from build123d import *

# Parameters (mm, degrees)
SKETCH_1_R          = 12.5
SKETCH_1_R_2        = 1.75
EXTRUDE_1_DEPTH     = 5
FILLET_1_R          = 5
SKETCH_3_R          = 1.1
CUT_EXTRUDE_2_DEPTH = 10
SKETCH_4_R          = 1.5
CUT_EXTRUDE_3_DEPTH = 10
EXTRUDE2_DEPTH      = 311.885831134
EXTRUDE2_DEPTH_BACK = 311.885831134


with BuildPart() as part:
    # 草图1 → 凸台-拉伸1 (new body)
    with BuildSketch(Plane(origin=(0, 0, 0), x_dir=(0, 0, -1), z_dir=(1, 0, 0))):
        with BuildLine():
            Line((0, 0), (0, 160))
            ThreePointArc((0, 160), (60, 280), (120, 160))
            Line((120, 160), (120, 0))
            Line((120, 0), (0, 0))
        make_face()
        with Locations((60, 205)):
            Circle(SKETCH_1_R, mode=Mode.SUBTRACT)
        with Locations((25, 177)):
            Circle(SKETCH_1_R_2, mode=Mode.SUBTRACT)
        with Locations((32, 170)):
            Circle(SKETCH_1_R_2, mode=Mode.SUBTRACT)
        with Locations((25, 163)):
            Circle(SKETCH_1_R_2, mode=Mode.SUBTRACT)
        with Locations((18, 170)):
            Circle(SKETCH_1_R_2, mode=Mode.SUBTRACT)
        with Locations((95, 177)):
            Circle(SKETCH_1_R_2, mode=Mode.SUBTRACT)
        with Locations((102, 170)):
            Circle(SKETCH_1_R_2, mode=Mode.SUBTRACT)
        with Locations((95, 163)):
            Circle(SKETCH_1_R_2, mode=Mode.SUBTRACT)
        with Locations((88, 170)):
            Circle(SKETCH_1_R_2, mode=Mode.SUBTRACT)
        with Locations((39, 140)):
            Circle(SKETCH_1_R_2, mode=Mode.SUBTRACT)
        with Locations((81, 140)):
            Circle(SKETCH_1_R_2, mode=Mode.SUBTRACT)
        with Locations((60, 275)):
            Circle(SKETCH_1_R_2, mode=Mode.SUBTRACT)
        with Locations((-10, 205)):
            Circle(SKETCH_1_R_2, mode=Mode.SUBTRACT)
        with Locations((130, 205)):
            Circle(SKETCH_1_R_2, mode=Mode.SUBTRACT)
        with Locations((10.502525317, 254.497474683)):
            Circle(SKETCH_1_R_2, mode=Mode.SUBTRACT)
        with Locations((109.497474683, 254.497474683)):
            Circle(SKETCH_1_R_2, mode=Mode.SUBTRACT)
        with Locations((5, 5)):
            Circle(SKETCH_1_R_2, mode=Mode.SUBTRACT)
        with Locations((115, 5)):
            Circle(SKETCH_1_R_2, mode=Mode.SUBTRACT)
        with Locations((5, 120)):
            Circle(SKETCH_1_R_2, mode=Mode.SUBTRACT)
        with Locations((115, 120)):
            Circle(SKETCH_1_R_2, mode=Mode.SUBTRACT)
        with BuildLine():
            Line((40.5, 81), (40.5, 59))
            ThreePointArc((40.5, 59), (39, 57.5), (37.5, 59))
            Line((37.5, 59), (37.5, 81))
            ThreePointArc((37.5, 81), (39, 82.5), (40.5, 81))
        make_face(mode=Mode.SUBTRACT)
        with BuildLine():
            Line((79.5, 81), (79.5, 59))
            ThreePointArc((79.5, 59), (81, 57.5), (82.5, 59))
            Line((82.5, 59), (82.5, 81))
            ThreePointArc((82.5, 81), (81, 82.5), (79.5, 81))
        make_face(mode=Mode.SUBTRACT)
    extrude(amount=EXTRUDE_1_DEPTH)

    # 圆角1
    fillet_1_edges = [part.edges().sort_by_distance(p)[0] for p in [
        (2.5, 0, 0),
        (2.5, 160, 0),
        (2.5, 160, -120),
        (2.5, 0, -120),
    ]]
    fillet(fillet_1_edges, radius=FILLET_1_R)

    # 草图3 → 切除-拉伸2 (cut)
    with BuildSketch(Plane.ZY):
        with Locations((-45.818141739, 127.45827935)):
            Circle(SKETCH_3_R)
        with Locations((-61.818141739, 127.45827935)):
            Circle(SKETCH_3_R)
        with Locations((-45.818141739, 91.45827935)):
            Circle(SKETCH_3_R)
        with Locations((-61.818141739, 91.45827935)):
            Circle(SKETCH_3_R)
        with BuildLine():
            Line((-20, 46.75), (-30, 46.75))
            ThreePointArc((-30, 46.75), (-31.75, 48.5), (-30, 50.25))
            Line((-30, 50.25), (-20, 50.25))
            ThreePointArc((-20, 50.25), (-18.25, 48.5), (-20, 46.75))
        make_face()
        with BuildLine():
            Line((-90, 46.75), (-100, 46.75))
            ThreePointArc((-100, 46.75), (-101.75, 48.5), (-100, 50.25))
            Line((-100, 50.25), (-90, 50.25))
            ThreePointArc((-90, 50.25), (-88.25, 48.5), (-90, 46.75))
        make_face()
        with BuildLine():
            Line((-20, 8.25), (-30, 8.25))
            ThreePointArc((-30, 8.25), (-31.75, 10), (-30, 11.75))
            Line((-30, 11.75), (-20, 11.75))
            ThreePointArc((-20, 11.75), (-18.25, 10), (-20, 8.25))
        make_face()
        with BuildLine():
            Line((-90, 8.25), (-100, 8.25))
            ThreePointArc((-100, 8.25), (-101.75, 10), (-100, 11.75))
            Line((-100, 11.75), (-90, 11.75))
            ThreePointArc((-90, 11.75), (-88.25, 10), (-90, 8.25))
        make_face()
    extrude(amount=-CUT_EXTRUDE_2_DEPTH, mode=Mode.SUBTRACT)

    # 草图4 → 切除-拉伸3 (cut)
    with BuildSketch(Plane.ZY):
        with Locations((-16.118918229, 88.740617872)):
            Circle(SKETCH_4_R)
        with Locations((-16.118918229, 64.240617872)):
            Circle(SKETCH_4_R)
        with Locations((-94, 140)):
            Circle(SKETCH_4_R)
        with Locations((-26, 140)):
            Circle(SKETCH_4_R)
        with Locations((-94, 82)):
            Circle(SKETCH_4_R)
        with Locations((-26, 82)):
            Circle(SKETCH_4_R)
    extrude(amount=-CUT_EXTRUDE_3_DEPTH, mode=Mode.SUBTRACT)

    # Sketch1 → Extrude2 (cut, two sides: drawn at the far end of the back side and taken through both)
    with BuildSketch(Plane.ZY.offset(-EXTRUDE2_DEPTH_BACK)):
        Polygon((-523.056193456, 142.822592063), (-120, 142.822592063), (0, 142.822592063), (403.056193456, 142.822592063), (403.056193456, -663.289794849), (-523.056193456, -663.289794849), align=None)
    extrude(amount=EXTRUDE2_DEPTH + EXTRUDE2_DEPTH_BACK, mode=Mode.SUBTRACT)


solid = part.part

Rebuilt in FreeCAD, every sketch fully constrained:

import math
import FreeCAD as App
import Part
import Sketcher
Q = App.Units.Quantity


def edges_at(feature, points):
    """Names of the edges that pass closest to the given points."""
    edges = feature.Shape.Edges
    near = lambda p: min(range(len(edges)), key=lambda i: edges[i].distToShape(Part.Vertex(*p))[0])
    return sorted({f"Edge{near(p) + 1}" for p in points})


def add_polygon(sketch, points):
    """Adds a closed chain of lines whose ends are joined by coincident constraints."""
    first, n = sketch.GeometryCount, len(points)
    for a, b in zip(points, points[1:] + points[:1]):
        sketch.addGeometry(Part.LineSegment(App.Vector(*a, 0), App.Vector(*b, 0)), False)
    for i in range(n):
        sketch.addConstraint(Sketcher.Constraint("Coincident", first + i, 2, first + (i + 1) % n, 1))

doc = App.newDocument("Part")
body = doc.addObject("PartDesign::Body", "Body")

# Sketch on YZ plane
sketch1 = body.newObject("Sketcher::SketchObject", "Sketch")
sketch1.AttachmentSupport = (doc.getObject("YZ_Plane"), [""])
sketch1.MapMode = "FlatFace"
sketch1.addGeometry(Part.LineSegment(App.Vector(160, 0, 0), App.Vector(0, 0, 0)), False)
sketch1.addGeometry(Part.LineSegment(App.Vector(0, 0, 0), App.Vector(0, -120, 0)), False)
sketch1.addGeometry(Part.LineSegment(App.Vector(0, -120, 0), App.Vector(160, -120, 0)), False)
sketch1.addGeometry(Part.ArcOfCircle(Part.Circle(App.Vector(205, -60, 0), App.Vector(0, 0, 1), 75), math.radians(-127), math.radians(127)), False)
sketch1.addGeometry(Part.Circle(App.Vector(5, -115, 0), App.Vector(0, 0, 1), 1.8), False)
sketch1.addGeometry(Part.ArcOfCircle(Part.Circle(App.Vector(81, -81, 0), App.Vector(0, 0, 1), 1.5), math.radians(-90), math.radians(90)), False)
sketch1.addGeometry(Part.LineSegment(App.Vector(81, -82.5, 0), App.Vector(59, -82.5, 0)), False)
sketch1.addGeometry(Part.ArcOfCircle(Part.Circle(App.Vector(59, -81, 0), App.Vector(0, 0, 1), 1.5), math.radians(90), math.radians(270)), False)
sketch1.addGeometry(Part.LineSegment(App.Vector(59, -79.5, 0), App.Vector(81, -79.5, 0)), False)
sketch1.addGeometry(Part.Circle(App.Vector(120, -115, 0), App.Vector(0, 0, 1), 1.8), False)
sketch1.addGeometry(Part.LineSegment(App.Vector(81, -40.5, 0), App.Vector(59, -40.5, 0)), False)
sketch1.addGeometry(Part.ArcOfCircle(Part.Circle(App.Vector(59, -39, 0), App.Vector(0, 0, 1), 1.5), math.radians(90), math.radians(270)), False)
sketch1.addGeometry(Part.LineSegment(App.Vector(59, -37.5, 0), App.Vector(81, -37.5, 0)), False)
sketch1.addGeometry(Part.ArcOfCircle(Part.Circle(App.Vector(81, -39, 0), App.Vector(0, 0, 1), 1.5), math.radians(-90), math.radians(90)), False)
sketch1.addGeometry(Part.Circle(App.Vector(5, -5, 0), App.Vector(0, 0, 1), 1.8), False)
sketch1.addGeometry(Part.Circle(App.Vector(120, -5, 0), App.Vector(0, 0, 1), 1.8), False)
sketch1.addGeometry(Part.Circle(App.Vector(170, -102, 0), App.Vector(0, 0, 1), 1.8), False)
sketch1.addGeometry(Part.Circle(App.Vector(205, -130, 0), App.Vector(0, 0, 1), 1.8), False)
sketch1.addGeometry(Part.Circle(App.Vector(140, -81, 0), App.Vector(0, 0, 1), 1.8), False)
sketch1.addGeometry(Part.Circle(App.Vector(163, -95, 0), App.Vector(0, 0, 1), 1.8), False)
sketch1.addGeometry(Part.Circle(App.Vector(170, -88, 0), App.Vector(0, 0, 1), 1.8), False)
sketch1.addGeometry(Part.Circle(App.Vector(177, -95, 0), App.Vector(0, 0, 1), 1.8), False)
sketch1.addGeometry(Part.Circle(App.Vector(254.5, -109.5, 0), App.Vector(0, 0, 1), 1.8), False)
sketch1.addGeometry(Part.Circle(App.Vector(140, -39, 0), App.Vector(0, 0, 1), 1.8), False)
sketch1.addGeometry(Part.Circle(App.Vector(163, -25, 0), App.Vector(0, 0, 1), 1.8), False)
sketch1.addGeometry(Part.Circle(App.Vector(170, -32, 0), App.Vector(0, 0, 1), 1.8), False)
sketch1.addGeometry(Part.Circle(App.Vector(205, -60, 0), App.Vector(0, 0, 1), 12.5), False)
sketch1.addGeometry(Part.Circle(App.Vector(177, -25, 0), App.Vector(0, 0, 1), 1.8), False)
sketch1.addGeometry(Part.Circle(App.Vector(170, -18, 0), App.Vector(0, 0, 1), 1.8), False)
sketch1.addGeometry(Part.Circle(App.Vector(205, 10, 0), App.Vector(0, 0, 1), 1.8), False)
sketch1.addGeometry(Part.Circle(App.Vector(275, -60, 0), App.Vector(0, 0, 1), 1.8), False)
sketch1.addGeometry(Part.Circle(App.Vector(254.5, -10.5, 0), App.Vector(0, 0, 1), 1.8), False)
sketch1.addConstraint(Sketcher.Constraint("Coincident", 0, 2, 1, 1))
sketch1.addConstraint(Sketcher.Constraint("Coincident", 1, 2, 2, 1))
sketch1.addConstraint(Sketcher.Constraint("Coincident", 2, 2, 3, 1))
sketch1.addConstraint(Sketcher.Constraint("Coincident", 3, 2, 0, 1))
sketch1.addConstraint(Sketcher.Constraint("Tangent", 5, 1, 6, 1))
sketch1.addConstraint(Sketcher.Constraint("Tangent", 6, 2, 7, 2))
sketch1.addConstraint(Sketcher.Constraint("Tangent", 7, 1, 8, 1))
sketch1.addConstraint(Sketcher.Constraint("Tangent", 8, 2, 5, 2))
sketch1.addConstraint(Sketcher.Constraint("Tangent", 10, 2, 11, 2))
sketch1.addConstraint(Sketcher.Constraint("Tangent", 11, 1, 12, 1))
sketch1.addConstraint(Sketcher.Constraint("Tangent", 12, 2, 13, 2))
sketch1.addConstraint(Sketcher.Constraint("Tangent", 13, 1, 10, 1))
sketch1.addConstraint(Sketcher.Constraint("Horizontal", 0))
sketch1.addConstraint(Sketcher.Constraint("Vertical", 1))
sketch1.addConstraint(Sketcher.Constraint("Horizontal", 2))
sketch1.addConstraint(Sketcher.Constraint("Horizontal", 6))
sketch1.addConstraint(Sketcher.Constraint("Horizontal", 8))
sketch1.addConstraint(Sketcher.Constraint("Horizontal", 10))
sketch1.addConstraint(Sketcher.Constraint("Horizontal", 12))
sketch1.addConstraint(Sketcher.Constraint("Coincident", 0, 2, -1, 1))
sketch1.addConstraint(Sketcher.Constraint("Coincident", 26, 3, 3, 3))
sketch1.addConstraint(Sketcher.Constraint("Equal", 4, 9))
sketch1.addConstraint(Sketcher.Constraint("Equal", 7, 11))
sketch1.addConstraint(Sketcher.Constraint("Equal", 9, 14))
sketch1.addConstraint(Sketcher.Constraint("Equal", 14, 15))
sketch1.addConstraint(Sketcher.Constraint("Equal", 15, 16))
sketch1.addConstraint(Sketcher.Constraint("Equal", 16, 17))
sketch1.addConstraint(Sketcher.Constraint("Equal", 17, 18))
sketch1.addConstraint(Sketcher.Constraint("Equal", 18, 19))
sketch1.addConstraint(Sketcher.Constraint("Equal", 19, 20))
sketch1.addConstraint(Sketcher.Constraint("Equal", 20, 21))
sketch1.addConstraint(Sketcher.Constraint("Equal", 21, 22))
sketch1.addConstraint(Sketcher.Constraint("Equal", 22, 23))
sketch1.addConstraint(Sketcher.Constraint("Equal", 23, 24))
sketch1.addConstraint(Sketcher.Constraint("Equal", 24, 25))
sketch1.addConstraint(Sketcher.Constraint("Equal", 25, 27))
sketch1.addConstraint(Sketcher.Constraint("Equal", 27, 28))
sketch1.addConstraint(Sketcher.Constraint("Equal", 28, 29))
sketch1.addConstraint(Sketcher.Constraint("Equal", 29, 30))
sketch1.addConstraint(Sketcher.Constraint("Equal", 30, 31))
sketch1.addConstraint(Sketcher.Constraint("Horizontal", 4, 3, 9, 3))
sketch1.addConstraint(Sketcher.Constraint("Horizontal", 14, 3, 15, 3))
sketch1.addConstraint(Sketcher.Constraint("Horizontal", 7, 3, 18, 3))
sketch1.addConstraint(Sketcher.Constraint("Horizontal", 19, 3, 21, 3))
sketch1.addConstraint(Sketcher.Constraint("Horizontal", 13, 3, 23, 3))
sketch1.addConstraint(Sketcher.Constraint("Horizontal", 24, 3, 27, 3))
sketch1.addConstraint(Sketcher.Constraint("Horizontal", 26, 3, 30, 3))
sketch1.addConstraint(Sketcher.Constraint("Vertical", 7, 3, 11, 3))
sketch1.addConstraint(Sketcher.Constraint("Vertical", 5, 3, 13, 3))
sketch1.addConstraint(Sketcher.Constraint("Vertical", 4, 3, 14, 3))
sketch1.addConstraint(Sketcher.Constraint("Vertical", 9, 3, 15, 3))
sketch1.addConstraint(Sketcher.Constraint("Vertical", 3, 3, 17, 3))
sketch1.addConstraint(Sketcher.Constraint("Vertical", 16, 3, 20, 3))
sketch1.addConstraint(Sketcher.Constraint("Vertical", 18, 3, 23, 3))
sketch1.addConstraint(Sketcher.Constraint("Vertical", 19, 3, 24, 3))
sketch1.addConstraint(Sketcher.Constraint("Vertical", 20, 3, 25, 3))
sketch1.addConstraint(Sketcher.Constraint("Vertical", 21, 3, 27, 3))
sketch1.addConstraint(Sketcher.Constraint("Vertical", 25, 3, 28, 3))
sketch1.addConstraint(Sketcher.Constraint("Vertical", 26, 3, 29, 3))
sketch1.addConstraint(Sketcher.Constraint("Vertical", 22, 3, 31, 3))
sketch1.addConstraint(Sketcher.Constraint("Vertical", 2, 2, 3, 2))
sketch1.addConstraint(Sketcher.Constraint("Diameter", 26, Q("25 mm")))
sketch1.addConstraint(Sketcher.Constraint("Radius", 3, Q("75 mm")))
sketch1.addConstraint(Sketcher.Constraint("Diameter", 4, Q("3.5 mm")))
sketch1.addConstraint(Sketcher.Constraint("Radius", 5, Q("1.5 mm")))
sketch1.addConstraint(Sketcher.Constraint("DistanceX", 0, 2, 0, 1, Q("160 mm")))
sketch1.addConstraint(Sketcher.Constraint("DistanceX", 6, 2, 6, 1, Q("22 mm")))
sketch1.addConstraint(Sketcher.Constraint("DistanceY", 1, 2, 1, 1, Q("120 mm")))
sketch1.addConstraint(Sketcher.Constraint("DistanceX", -1, 1, 4, 3, Q("5 mm")))
sketch1.addConstraint(Sketcher.Constraint("DistanceY", 4, 3, -1, 1, Q("115 mm")))
sketch1.addConstraint(Sketcher.Constraint("DistanceX", -1, 1, 5, 3, Q("81 mm")))
sketch1.addConstraint(Sketcher.Constraint("DistanceY", 5, 3, -1, 1, Q("81 mm")))
sketch1.addConstraint(Sketcher.Constraint("DistanceX", -1, 1, 9, 3, Q("120 mm")))
sketch1.addConstraint(Sketcher.Constraint("DistanceY", 11, 3, -1, 1, Q("39 mm")))
sketch1.addConstraint(Sketcher.Constraint("DistanceY", 14, 3, -1, 1, Q("5 mm")))
sketch1.addConstraint(Sketcher.Constraint("DistanceX", -1, 1, 16, 3, Q("170 mm")))
sketch1.addConstraint(Sketcher.Constraint("DistanceY", 16, 3, -1, 1, Q("102 mm")))
sketch1.addConstraint(Sketcher.Constraint("DistanceY", 17, 3, -1, 1, Q("130 mm")))
sketch1.addConstraint(Sketcher.Constraint("DistanceX", -1, 1, 18, 3, Q("140 mm")))
sketch1.addConstraint(Sketcher.Constraint("DistanceX", -1, 1, 19, 3, Q("163 mm")))
sketch1.addConstraint(Sketcher.Constraint("DistanceY", 19, 3, -1, 1, Q("95 mm")))
sketch1.addConstraint(Sketcher.Constraint("DistanceY", 20, 3, -1, 1, Q("88 mm")))
sketch1.addConstraint(Sketcher.Constraint("DistanceX", -1, 1, 21, 3, Q("177 mm")))
sketch1.addConstraint(Sketcher.Constraint("DistanceY", 24, 3, -1, 1, Q("25 mm")))
sketch1.addConstraint(Sketcher.Constraint("DistanceY", 25, 3, -1, 1, Q("32 mm")))
sketch1.addConstraint(Sketcher.Constraint("DistanceY", 28, 3, -1, 1, Q("18 mm")))
sketch1.addConstraint(Sketcher.Constraint("DistanceY", -1, 1, 29, 3, Q("10 mm")))
sketch1.addConstraint(Sketcher.Constraint("DistanceX", -1, 1, 30, 3, Q("275 mm")))
sketch1.addConstraint(Sketcher.Constraint("DistanceX", -1, 1, 22, 3, Q("254.497475 mm")))
sketch1.addConstraint(Sketcher.Constraint("DistanceY", 22, 3, -1, 1, Q("109.497475 mm")))
sketch1.addConstraint(Sketcher.Constraint("DistanceY", 31, 3, -1, 1, Q("10.502525 mm")))
pad1 = body.newObject("PartDesign::Pad", "Pad")
pad1.Profile = sketch1
pad1.Length = 5
doc.recompute()

fillet = body.newObject("PartDesign::Fillet", "Fillet")
fillet.Base = (pad1, edges_at(pad1, [
    (2.5, 0, 0),
    (2.5, 160, 0),
    (2.5, 160, -120),
    (2.5, 0, -120),
]))
fillet.Radius = 5

# Sketch on YZ plane
sketch2 = body.newObject("Sketcher::SketchObject", "Sketch001")
sketch2.AttachmentSupport = (doc.getObject("YZ_Plane"), [""])
sketch2.MapMode = "FlatFace"
sketch2.addGeometry(Part.Circle(App.Vector(127.5, -45.8, 0), App.Vector(0, 0, 1), 1.1), False)
sketch2.addGeometry(Part.Circle(App.Vector(127.5, -61.8, 0), App.Vector(0, 0, 1), 1.1), False)
sketch2.addGeometry(Part.Circle(App.Vector(91.5, -45.8, 0), App.Vector(0, 0, 1), 1.1), False)
sketch2.addGeometry(Part.Circle(App.Vector(91.5, -61.8, 0), App.Vector(0, 0, 1), 1.1), False)
sketch2.addGeometry(Part.LineSegment(App.Vector(46.8, -30, 0), App.Vector(46.8, -20, 0)), False)
sketch2.addGeometry(Part.ArcOfCircle(Part.Circle(App.Vector(48.5, -20, 0), App.Vector(0, 0, 1), 1.8), math.radians(0), math.radians(180)), False)
sketch2.addGeometry(Part.LineSegment(App.Vector(50.2, -20, 0), App.Vector(50.2, -30, 0)), False)
sketch2.addGeometry(Part.ArcOfCircle(Part.Circle(App.Vector(48.5, -30, 0), App.Vector(0, 0, 1), 1.8), math.radians(180), math.radians(360)), False)
sketch2.addGeometry(Part.LineSegment(App.Vector(46.8, -100, 0), App.Vector(46.8, -90, 0)), False)
sketch2.addGeometry(Part.ArcOfCircle(Part.Circle(App.Vector(48.5, -90, 0), App.Vector(0, 0, 1), 1.8), math.radians(0), math.radians(180)), False)
sketch2.addGeometry(Part.LineSegment(App.Vector(50.2, -90, 0), App.Vector(50.2, -100, 0)), False)
sketch2.addGeometry(Part.ArcOfCircle(Part.Circle(App.Vector(48.5, -100, 0), App.Vector(0, 0, 1), 1.8), math.radians(180), math.radians(360)), False)
sketch2.addGeometry(Part.LineSegment(App.Vector(8.2, -30, 0), App.Vector(8.2, -20, 0)), False)
sketch2.addGeometry(Part.ArcOfCircle(Part.Circle(App.Vector(10, -20, 0), App.Vector(0, 0, 1), 1.8), math.radians(0), math.radians(180)), False)
sketch2.addGeometry(Part.LineSegment(App.Vector(11.8, -20, 0), App.Vector(11.8, -30, 0)), False)
sketch2.addGeometry(Part.ArcOfCircle(Part.Circle(App.Vector(10, -30, 0), App.Vector(0, 0, 1), 1.8), math.radians(180), math.radians(360)), False)
sketch2.addGeometry(Part.LineSegment(App.Vector(8.2, -100, 0), App.Vector(8.2, -90, 0)), False)
sketch2.addGeometry(Part.ArcOfCircle(Part.Circle(App.Vector(10, -90, 0), App.Vector(0, 0, 1), 1.8), math.radians(0), math.radians(180)), False)
sketch2.addGeometry(Part.LineSegment(App.Vector(11.8, -90, 0), App.Vector(11.8, -100, 0)), False)
sketch2.addGeometry(Part.ArcOfCircle(Part.Circle(App.Vector(10, -100, 0), App.Vector(0, 0, 1), 1.8), math.radians(180), math.radians(360)), False)
sketch2.addConstraint(Sketcher.Constraint("Tangent", 4, 2, 5, 2))
sketch2.addConstraint(Sketcher.Constraint("Tangent", 5, 1, 6, 1))
sketch2.addConstraint(Sketcher.Constraint("Tangent", 6, 2, 7, 2))
sketch2.addConstraint(Sketcher.Constraint("Tangent", 7, 1, 4, 1))
sketch2.addConstraint(Sketcher.Constraint("Tangent", 8, 2, 9, 2))
sketch2.addConstraint(Sketcher.Constraint("Tangent", 9, 1, 10, 1))
sketch2.addConstraint(Sketcher.Constraint("Tangent", 10, 2, 11, 2))
sketch2.addConstraint(Sketcher.Constraint("Tangent", 11, 1, 8, 1))
sketch2.addConstraint(Sketcher.Constraint("Tangent", 12, 2, 13, 2))
sketch2.addConstraint(Sketcher.Constraint("Tangent", 13, 1, 14, 1))
sketch2.addConstraint(Sketcher.Constraint("Tangent", 14, 2, 15, 2))
sketch2.addConstraint(Sketcher.Constraint("Tangent", 15, 1, 12, 1))
sketch2.addConstraint(Sketcher.Constraint("Tangent", 16, 2, 17, 2))
sketch2.addConstraint(Sketcher.Constraint("Tangent", 17, 1, 18, 1))
sketch2.addConstraint(Sketcher.Constraint("Tangent", 18, 2, 19, 2))
sketch2.addConstraint(Sketcher.Constraint("Tangent", 19, 1, 16, 1))
sketch2.addConstraint(Sketcher.Constraint("Vertical", 4))
sketch2.addConstraint(Sketcher.Constraint("Vertical", 6))
sketch2.addConstraint(Sketcher.Constraint("Vertical", 8))
sketch2.addConstraint(Sketcher.Constraint("Vertical", 10))
sketch2.addConstraint(Sketcher.Constraint("Vertical", 12))
sketch2.addConstraint(Sketcher.Constraint("Vertical", 14))
sketch2.addConstraint(Sketcher.Constraint("Vertical", 16))
sketch2.addConstraint(Sketcher.Constraint("Vertical", 18))
sketch2.addConstraint(Sketcher.Constraint("Equal", 0, 1))
sketch2.addConstraint(Sketcher.Constraint("Equal", 1, 2))
sketch2.addConstraint(Sketcher.Constraint("Equal", 2, 3))
sketch2.addConstraint(Sketcher.Constraint("Equal", 7, 9))
sketch2.addConstraint(Sketcher.Constraint("Equal", 11, 13))
sketch2.addConstraint(Sketcher.Constraint("Equal", 15, 17))
sketch2.addConstraint(Sketcher.Constraint("Horizontal", 0, 3, 2, 3))
sketch2.addConstraint(Sketcher.Constraint("Horizontal", 1, 3, 3, 3))
sketch2.addConstraint(Sketcher.Constraint("Horizontal", 5, 3, 13, 3))
sketch2.addConstraint(Sketcher.Constraint("Horizontal", 7, 3, 15, 3))
sketch2.addConstraint(Sketcher.Constraint("Horizontal", 9, 3, 17, 3))
sketch2.addConstraint(Sketcher.Constraint("Horizontal", 11, 3, 19, 3))
sketch2.addConstraint(Sketcher.Constraint("Vertical", 0, 3, 1, 3))
sketch2.addConstraint(Sketcher.Constraint("Vertical", 2, 3, 3, 3))
sketch2.addConstraint(Sketcher.Constraint("Vertical", 7, 3, 9, 3))
sketch2.addConstraint(Sketcher.Constraint("Vertical", 15, 3, 17, 3))
sketch2.addConstraint(Sketcher.Constraint("Equal", 6, 8))
sketch2.addConstraint(Sketcher.Constraint("Diameter", 0, Q("2.2 mm")))
sketch2.addConstraint(Sketcher.Constraint("DistanceY", 4, 1, 4, 2, Q("10 mm")))
sketch2.addConstraint(Sketcher.Constraint("Radius", 5, Q("1.75 mm")))
sketch2.addConstraint(Sketcher.Constraint("DistanceY", 5, 3, -1, 1, Q("20 mm")))
sketch2.addConstraint(Sketcher.Constraint("DistanceY", 9, 3, -1, 1, Q("90 mm")))
sketch2.addConstraint(Sketcher.Constraint("DistanceX", -1, 1, 13, 3, Q("10 mm")))
sketch2.addConstraint(Sketcher.Constraint("DistanceY", 1, 3, 0, 3, Q("16 mm")))
sketch2.addConstraint(Sketcher.Constraint("DistanceX", 2, 3, 0, 3, Q("36 mm")))
sketch2.addConstraint(Sketcher.Constraint("DistanceX", 13, 1, 4, 2, Q("35 mm")))
sketch2.addConstraint(Sketcher.Constraint("DistanceX", -1, 1, 0, 3, Q("127.458279 mm")))
sketch2.addConstraint(Sketcher.Constraint("DistanceY", 0, 3, -1, 1, Q("45.818142 mm")))
pocket1 = body.newObject("PartDesign::Pocket", "Pocket")
pocket1.Profile = sketch2
pocket1.Length = 10
pocket1.Reversed = True

# Sketch on YZ plane
sketch3 = body.newObject("Sketcher::SketchObject", "Sketch002")
sketch3.AttachmentSupport = (doc.getObject("YZ_Plane"), [""])
sketch3.MapMode = "FlatFace"
sketch3.addGeometry(Part.Circle(App.Vector(88.7, -16.1, 0), App.Vector(0, 0, 1), 1.5), False)
sketch3.addGeometry(Part.Circle(App.Vector(64.2, -16.1, 0), App.Vector(0, 0, 1), 1.5), False)
sketch3.addGeometry(Part.Circle(App.Vector(140, -94, 0), App.Vector(0, 0, 1), 1.5), False)
sketch3.addGeometry(Part.Circle(App.Vector(140, -26, 0), App.Vector(0, 0, 1), 1.5), False)
sketch3.addGeometry(Part.Circle(App.Vector(82, -94, 0), App.Vector(0, 0, 1), 1.5), False)
sketch3.addGeometry(Part.Circle(App.Vector(82, -26, 0), App.Vector(0, 0, 1), 1.5), False)
sketch3.addConstraint(Sketcher.Constraint("Equal", 0, 1))
sketch3.addConstraint(Sketcher.Constraint("Equal", 1, 2))
sketch3.addConstraint(Sketcher.Constraint("Equal", 2, 3))
sketch3.addConstraint(Sketcher.Constraint("Equal", 3, 4))
sketch3.addConstraint(Sketcher.Constraint("Equal", 4, 5))
sketch3.addConstraint(Sketcher.Constraint("Horizontal", 0, 3, 1, 3))
sketch3.addConstraint(Sketcher.Constraint("Horizontal", 2, 3, 4, 3))
sketch3.addConstraint(Sketcher.Constraint("Horizontal", 3, 3, 5, 3))
sketch3.addConstraint(Sketcher.Constraint("Vertical", 2, 3, 3, 3))
sketch3.addConstraint(Sketcher.Constraint("Vertical", 4, 3, 5, 3))
sketch3.addConstraint(Sketcher.Constraint("Diameter", 0, Q("3 mm")))
sketch3.addConstraint(Sketcher.Constraint("DistanceX", -1, 1, 2, 3, Q("140 mm")))
sketch3.addConstraint(Sketcher.Constraint("DistanceY", 2, 3, -1, 1, Q("94 mm")))
sketch3.addConstraint(Sketcher.Constraint("DistanceY", 3, 3, -1, 1, Q("26 mm")))
sketch3.addConstraint(Sketcher.Constraint("DistanceX", -1, 1, 4, 3, Q("82 mm")))
sketch3.addConstraint(Sketcher.Constraint("DistanceX", 1, 3, 0, 3, Q("24.5 mm")))
sketch3.addConstraint(Sketcher.Constraint("DistanceY", 0, 3, -1, 1, Q("16.118918 mm")))
sketch3.addConstraint(Sketcher.Constraint("DistanceX", -1, 1, 0, 3, Q("88.740618 mm")))
pocket2 = body.newObject("PartDesign::Pocket", "Pocket001")
pocket2.Profile = sketch3
pocket2.Length = 10
pocket2.Reversed = True

# Sketch on YZ plane
sketch4 = body.newObject("Sketcher::SketchObject", "Sketch003")
sketch4.AttachmentSupport = (doc.getObject("YZ_Plane"), [""])
sketch4.MapMode = "FlatFace"
add_polygon(sketch4, [(143, 403), (143, -523), (-663, -523), (-663, 403)])  # lines 0-3
sketch4.addConstraint(Sketcher.Constraint("Vertical", 0))
sketch4.addConstraint(Sketcher.Constraint("Horizontal", 1))
sketch4.addConstraint(Sketcher.Constraint("Vertical", 2))
sketch4.addConstraint(Sketcher.Constraint("Horizontal", 3))
sketch4.addConstraint(Sketcher.Constraint("DistanceX", 1, 2, 1, 1, Q("806.112387 mm")))
sketch4.addConstraint(Sketcher.Constraint("DistanceY", 0, 2, 0, 1, Q("926.112387 mm")))
sketch4.addConstraint(Sketcher.Constraint("DistanceX", -1, 1, 0, 2, Q("142.822592 mm")))
sketch4.addConstraint(Sketcher.Constraint("DistanceY", 0, 2, -1, 1, Q("523.056193 mm")))
pocket3 = body.newObject("PartDesign::Pocket", "Pocket002")
pocket3.Profile = sketch4
pocket3.Type = "ThroughAll"
pocket3.Midplane = True

doc.recompute()
